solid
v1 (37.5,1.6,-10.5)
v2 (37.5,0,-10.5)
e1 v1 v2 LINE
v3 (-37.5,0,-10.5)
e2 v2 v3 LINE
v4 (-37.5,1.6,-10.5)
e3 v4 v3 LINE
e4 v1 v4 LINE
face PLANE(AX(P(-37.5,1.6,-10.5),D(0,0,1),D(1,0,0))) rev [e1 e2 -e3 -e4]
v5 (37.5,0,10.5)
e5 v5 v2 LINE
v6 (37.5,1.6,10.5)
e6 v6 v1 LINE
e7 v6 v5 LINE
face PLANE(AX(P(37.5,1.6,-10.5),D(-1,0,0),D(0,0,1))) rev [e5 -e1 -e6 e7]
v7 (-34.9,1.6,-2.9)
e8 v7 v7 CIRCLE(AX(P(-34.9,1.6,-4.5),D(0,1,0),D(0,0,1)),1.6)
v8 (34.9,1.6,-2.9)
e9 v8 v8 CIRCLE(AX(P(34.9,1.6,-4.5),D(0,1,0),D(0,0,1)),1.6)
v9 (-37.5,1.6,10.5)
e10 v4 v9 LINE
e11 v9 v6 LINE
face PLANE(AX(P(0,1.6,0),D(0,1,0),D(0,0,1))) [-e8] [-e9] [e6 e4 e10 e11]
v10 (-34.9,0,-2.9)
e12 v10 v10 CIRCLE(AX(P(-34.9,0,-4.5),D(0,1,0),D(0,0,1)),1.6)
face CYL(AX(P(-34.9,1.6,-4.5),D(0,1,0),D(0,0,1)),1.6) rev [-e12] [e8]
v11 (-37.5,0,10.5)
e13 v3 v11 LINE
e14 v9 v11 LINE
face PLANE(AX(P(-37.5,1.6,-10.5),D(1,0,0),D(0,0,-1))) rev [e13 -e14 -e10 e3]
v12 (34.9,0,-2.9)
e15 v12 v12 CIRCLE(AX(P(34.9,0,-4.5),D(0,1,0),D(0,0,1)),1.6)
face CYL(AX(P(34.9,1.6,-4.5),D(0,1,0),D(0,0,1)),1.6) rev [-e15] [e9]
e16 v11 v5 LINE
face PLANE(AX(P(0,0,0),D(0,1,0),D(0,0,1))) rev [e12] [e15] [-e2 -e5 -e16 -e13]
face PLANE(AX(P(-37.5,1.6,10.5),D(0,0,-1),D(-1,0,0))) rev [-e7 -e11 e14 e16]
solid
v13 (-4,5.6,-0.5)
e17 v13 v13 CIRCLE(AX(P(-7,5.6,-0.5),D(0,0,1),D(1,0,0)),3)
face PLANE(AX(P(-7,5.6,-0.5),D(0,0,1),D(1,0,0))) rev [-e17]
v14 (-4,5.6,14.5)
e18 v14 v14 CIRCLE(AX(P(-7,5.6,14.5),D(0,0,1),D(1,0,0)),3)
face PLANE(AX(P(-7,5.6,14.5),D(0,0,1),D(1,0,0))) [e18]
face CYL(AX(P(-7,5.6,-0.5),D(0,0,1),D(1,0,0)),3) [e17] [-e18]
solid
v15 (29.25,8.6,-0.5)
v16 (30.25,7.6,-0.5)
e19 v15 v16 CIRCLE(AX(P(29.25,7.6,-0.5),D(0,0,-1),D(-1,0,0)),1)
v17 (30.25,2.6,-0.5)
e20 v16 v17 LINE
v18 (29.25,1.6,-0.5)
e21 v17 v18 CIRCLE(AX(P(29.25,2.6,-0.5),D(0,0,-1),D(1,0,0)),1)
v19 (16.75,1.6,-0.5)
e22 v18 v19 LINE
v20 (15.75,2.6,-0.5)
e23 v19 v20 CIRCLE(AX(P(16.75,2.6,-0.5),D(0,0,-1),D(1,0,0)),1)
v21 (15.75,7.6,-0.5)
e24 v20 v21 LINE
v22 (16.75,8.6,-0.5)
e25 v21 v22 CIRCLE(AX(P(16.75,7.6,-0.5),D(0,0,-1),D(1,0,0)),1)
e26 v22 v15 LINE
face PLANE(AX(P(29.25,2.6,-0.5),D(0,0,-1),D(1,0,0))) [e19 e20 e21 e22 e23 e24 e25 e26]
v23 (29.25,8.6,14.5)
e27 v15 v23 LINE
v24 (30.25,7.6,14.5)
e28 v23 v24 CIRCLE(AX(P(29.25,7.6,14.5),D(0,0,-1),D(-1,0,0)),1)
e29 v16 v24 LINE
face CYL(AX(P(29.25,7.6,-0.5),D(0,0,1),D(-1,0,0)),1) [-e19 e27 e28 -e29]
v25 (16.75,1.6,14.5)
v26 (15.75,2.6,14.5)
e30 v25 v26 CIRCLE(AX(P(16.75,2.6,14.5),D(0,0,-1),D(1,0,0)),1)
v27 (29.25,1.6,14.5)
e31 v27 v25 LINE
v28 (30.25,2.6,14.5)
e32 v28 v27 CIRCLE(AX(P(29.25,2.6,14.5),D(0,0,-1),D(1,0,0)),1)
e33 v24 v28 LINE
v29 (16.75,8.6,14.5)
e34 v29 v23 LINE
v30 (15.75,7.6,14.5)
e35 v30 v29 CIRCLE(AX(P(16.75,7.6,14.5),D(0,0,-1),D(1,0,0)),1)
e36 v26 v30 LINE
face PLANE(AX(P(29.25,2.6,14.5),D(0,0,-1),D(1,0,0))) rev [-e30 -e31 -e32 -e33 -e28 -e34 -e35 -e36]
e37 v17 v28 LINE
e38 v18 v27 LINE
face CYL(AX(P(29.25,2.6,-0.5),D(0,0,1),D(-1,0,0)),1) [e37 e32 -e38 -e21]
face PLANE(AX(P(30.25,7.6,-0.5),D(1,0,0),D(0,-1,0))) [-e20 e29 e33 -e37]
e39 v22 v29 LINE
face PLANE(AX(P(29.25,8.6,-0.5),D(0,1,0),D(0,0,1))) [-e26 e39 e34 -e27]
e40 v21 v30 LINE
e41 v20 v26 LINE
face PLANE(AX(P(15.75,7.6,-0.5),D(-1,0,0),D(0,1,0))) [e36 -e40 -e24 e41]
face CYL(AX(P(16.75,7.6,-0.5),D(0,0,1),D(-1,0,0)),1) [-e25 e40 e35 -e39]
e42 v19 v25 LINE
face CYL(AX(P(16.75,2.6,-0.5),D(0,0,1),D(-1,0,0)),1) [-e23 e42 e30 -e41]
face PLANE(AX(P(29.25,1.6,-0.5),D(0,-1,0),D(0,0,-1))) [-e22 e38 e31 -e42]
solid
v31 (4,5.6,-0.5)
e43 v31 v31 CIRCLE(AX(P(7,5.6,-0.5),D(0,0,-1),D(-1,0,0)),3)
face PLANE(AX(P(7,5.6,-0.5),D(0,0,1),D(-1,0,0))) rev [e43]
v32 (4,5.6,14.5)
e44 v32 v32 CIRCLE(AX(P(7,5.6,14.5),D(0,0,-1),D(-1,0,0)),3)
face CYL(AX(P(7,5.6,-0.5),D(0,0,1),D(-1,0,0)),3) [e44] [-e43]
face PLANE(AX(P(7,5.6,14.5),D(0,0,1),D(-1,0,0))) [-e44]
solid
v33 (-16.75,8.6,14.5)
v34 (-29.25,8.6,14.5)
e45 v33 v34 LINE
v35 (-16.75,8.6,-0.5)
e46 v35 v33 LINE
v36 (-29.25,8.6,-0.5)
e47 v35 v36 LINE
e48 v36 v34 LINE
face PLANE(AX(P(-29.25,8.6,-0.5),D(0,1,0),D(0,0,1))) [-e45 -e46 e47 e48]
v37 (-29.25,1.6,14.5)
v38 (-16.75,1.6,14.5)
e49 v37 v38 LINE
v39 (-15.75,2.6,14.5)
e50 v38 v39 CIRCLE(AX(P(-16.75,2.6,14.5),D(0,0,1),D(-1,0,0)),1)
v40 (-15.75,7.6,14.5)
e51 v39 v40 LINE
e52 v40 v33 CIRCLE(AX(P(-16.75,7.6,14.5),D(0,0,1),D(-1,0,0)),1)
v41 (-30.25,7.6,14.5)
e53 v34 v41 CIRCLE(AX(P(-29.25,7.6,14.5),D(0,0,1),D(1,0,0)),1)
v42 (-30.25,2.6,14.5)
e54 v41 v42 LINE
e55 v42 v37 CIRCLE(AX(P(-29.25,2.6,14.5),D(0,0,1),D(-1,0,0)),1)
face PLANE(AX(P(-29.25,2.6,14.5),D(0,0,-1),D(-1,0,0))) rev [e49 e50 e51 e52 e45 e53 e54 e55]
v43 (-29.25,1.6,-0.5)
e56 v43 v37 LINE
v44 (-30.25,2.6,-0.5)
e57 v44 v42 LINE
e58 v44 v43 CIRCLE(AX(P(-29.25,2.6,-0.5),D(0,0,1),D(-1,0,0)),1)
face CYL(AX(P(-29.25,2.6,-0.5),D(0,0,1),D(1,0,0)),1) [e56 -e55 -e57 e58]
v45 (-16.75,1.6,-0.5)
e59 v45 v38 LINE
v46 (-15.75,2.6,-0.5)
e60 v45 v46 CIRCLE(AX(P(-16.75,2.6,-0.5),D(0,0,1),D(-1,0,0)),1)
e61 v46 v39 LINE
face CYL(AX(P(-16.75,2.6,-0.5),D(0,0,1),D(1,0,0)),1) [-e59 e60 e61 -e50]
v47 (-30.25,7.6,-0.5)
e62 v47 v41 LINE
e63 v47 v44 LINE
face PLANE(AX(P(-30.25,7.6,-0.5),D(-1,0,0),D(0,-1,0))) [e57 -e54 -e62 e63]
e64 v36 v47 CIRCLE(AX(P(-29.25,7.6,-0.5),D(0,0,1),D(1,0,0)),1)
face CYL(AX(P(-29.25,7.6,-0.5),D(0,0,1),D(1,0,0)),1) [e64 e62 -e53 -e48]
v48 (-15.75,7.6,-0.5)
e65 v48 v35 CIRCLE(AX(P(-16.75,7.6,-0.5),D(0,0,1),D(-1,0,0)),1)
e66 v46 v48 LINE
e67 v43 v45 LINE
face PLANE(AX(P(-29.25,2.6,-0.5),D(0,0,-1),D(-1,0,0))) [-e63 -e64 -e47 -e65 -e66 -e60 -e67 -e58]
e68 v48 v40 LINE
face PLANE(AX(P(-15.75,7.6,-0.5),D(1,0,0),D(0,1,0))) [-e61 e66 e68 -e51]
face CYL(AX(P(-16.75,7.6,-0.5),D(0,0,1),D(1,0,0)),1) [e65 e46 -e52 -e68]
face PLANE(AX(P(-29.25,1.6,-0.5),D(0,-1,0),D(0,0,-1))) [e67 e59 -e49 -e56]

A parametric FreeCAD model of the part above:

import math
import FreeCAD as App
import Part
import Sketcher
Q = App.Units.Quantity

doc = App.newDocument("Part")
body = doc.addObject("PartDesign::Body", "Body")

sketch1 = body.newObject("Sketcher::SketchObject", "Sketch")
sketch1.AttachmentSupport = (doc.getObject("XZ_Plane"), [""])
sketch1.MapMode = "FlatFace"
sketch1.addGeometry(Part.LineSegment(App.Vector(-38, -10, 0), App.Vector(-38, 10, 0)), False)
sketch1.addGeometry(Part.LineSegment(App.Vector(-38, 10, 0), App.Vector(38, 10, 0)), False)
sketch1.addGeometry(Part.LineSegment(App.Vector(38, 10, 0), App.Vector(38, -10, 0)), False)
sketch1.addGeometry(Part.LineSegment(App.Vector(38, -10, 0), App.Vector(-38, -10, 0)), False)
sketch1.addConstraint(Sketcher.Constraint("Coincident", 0, 2, 1, 1))
sketch1.addConstraint(Sketcher.Constraint("Coincident", 1, 2, 2, 1))
sketch1.addConstraint(Sketcher.Constraint("Coincident", 2, 2, 3, 1))
sketch1.addConstraint(Sketcher.Constraint("Coincident", 3, 2, 0, 1))
sketch1.addConstraint(Sketcher.Constraint("Vertical", 0))
sketch1.addConstraint(Sketcher.Constraint("Horizontal", 1))
sketch1.addConstraint(Sketcher.Constraint("Vertical", 2))
sketch1.addConstraint(Sketcher.Constraint("Horizontal", 3))
sketch1.addConstraint(Sketcher.Constraint("Symmetric", 0, 2, 2, 2, -1, 1))
sketch1.addConstraint(Sketcher.Constraint("DistanceX", 1, 1, 1, 2, Q("75 mm")))
sketch1.addConstraint(Sketcher.Constraint("DistanceY", 0, 1, 0, 2, Q("21 mm")))
pad1 = body.newObject("PartDesign::Pad", "Pad")
pad1.Profile = sketch1
pad1.Length = 1.6
pad1.Reversed = True

sketch2 = body.newObject("Sketcher::SketchObject", "Sketch001")
sketch2.AttachmentSupport = (doc.getObject("YZ_Plane"), [""])
sketch2.MapMode = "FlatFace"
sketch2.AttachmentOffset = App.Placement(App.Vector(0, 0, -34.9), App.Rotation())
sketch2.addGeometry(Part.LineSegment(App.Vector(0, -4.5, 0), App.Vector(1.6, -4.5, 0)), False)
sketch2.addGeometry(Part.LineSegment(App.Vector(1.6, -4.5, 0), App.Vector(1.6, -2.9, 0)), False)
sketch2.addGeometry(Part.LineSegment(App.Vector(1.6, -2.9, 0), App.Vector(0, -2.9, 0)), False)
sketch2.addGeometry(Part.LineSegment(App.Vector(0, -2.9, 0), App.Vector(0, -4.5, 0)), False)
sketch2.addGeometry(Part.LineSegment(App.Vector(1.6, -4.5, 0), App.Vector(0, -4.5, 0)), True)
sketch2.addConstraint(Sketcher.Constraint("Coincident", 0, 2, 1, 1))
sketch2.addConstraint(Sketcher.Constraint("Coincident", 1, 2, 2, 1))
sketch2.addConstraint(Sketcher.Constraint("Coincident", 2, 2, 3, 1))
sketch2.addConstraint(Sketcher.Constraint("Coincident", 3, 2, 0, 1))
sketch2.addConstraint(Sketcher.Constraint("Horizontal", 0))
sketch2.addConstraint(Sketcher.Constraint("Vertical", 1))
sketch2.addConstraint(Sketcher.Constraint("Horizontal", 2))
sketch2.addConstraint(Sketcher.Constraint("Vertical", 3))
sketch2.addConstraint(Sketcher.Constraint("Horizontal", 4))
sketch2.addConstraint(Sketcher.Constraint("Coincident", 4, 1, 0, 2))
sketch2.addConstraint(Sketcher.Constraint("PointOnObject", 2, 2, -2))
sketch2.addConstraint(Sketcher.Constraint("PointOnObject", 4, 2, -2))
sketch2.addConstraint(Sketcher.Constraint("Equal", 4, 1))
sketch2.addConstraint(Sketcher.Constraint("DistanceX", 0, 1, 0, 2, Q("1.6 mm")))
sketch2.addConstraint(Sketcher.Constraint("DistanceY", 0, 2, -1, 1, Q("4.5 mm")))
groove = body.newObject("PartDesign::Groove", "Groove")
groove.Profile = sketch2
groove.ReferenceAxis = (sketch2, ["Axis0"])
groove.Angle = 360
doc.recompute()

linearpattern = body.newObject("PartDesign::LinearPattern", "LinearPattern")
linearpattern.Originals = [groove]
linearpattern.Direction = (doc.getObject("X_Axis"), [""])
linearpattern.Mode = "offset"
linearpattern.Offset = 69.8
linearpattern.Occurrences = 2
body.Tip = linearpattern
body2 = doc.addObject("PartDesign::Body", "Body001")

sketch3 = body2.newObject("Sketcher::SketchObject", "Sketch002")
sketch3.AttachmentSupport = (doc.getObject("XY_Plane001"), [""])
sketch3.MapMode = "FlatFace"
sketch3.AttachmentOffset = App.Placement(App.Vector(0, 0, 14.5), App.Rotation())
sketch3.addGeometry(Part.Circle(App.Vector(-7, 5.6, 0), App.Vector(0, 0, 1), 3), False)
sketch3.addConstraint(Sketcher.Constraint("Diameter", 0, Q("6 mm")))
sketch3.addConstraint(Sketcher.Constraint("DistanceX", 0, 3, -1, 1, Q("7 mm")))
sketch3.addConstraint(Sketcher.Constraint("DistanceY", -1, 1, 0, 3, Q("5.6 mm")))
pad2 = body2.newObject("PartDesign::Pad", "Pad001")
pad2.Profile = sketch3
pad2.Length = 15
pad2.Reversed = True
body3 = doc.addObject("PartDesign::Body", "Body002")

sketch4 = body3.newObject("Sketcher::SketchObject", "Sketch003")
sketch4.AttachmentSupport = (doc.getObject("XY_Plane002"), [""])
sketch4.MapMode = "FlatFace"
sketch4.AttachmentOffset = App.Placement(App.Vector(0, 0, 14.5), App.Rotation())
sketch4.addGeometry(Part.LineSegment(App.Vector(-16.8, 8.6, 0), App.Vector(-29.2, 8.6, 0)), False)
sketch4.addGeometry(Part.ArcOfCircle(Part.Circle(App.Vector(-29.2, 7.6, 0), App.Vector(0, 0, 1), 1), math.radians(90), math.radians(180)), False)
sketch4.addGeometry(Part.LineSegment(App.Vector(-30.2, 7.6, 0), App.Vector(-30.2, 2.6, 0)), False)
sketch4.addGeometry(Part.ArcOfCircle(Part.Circle(App.Vector(-29.2, 2.6, 0), App.Vector(0, 0, 1), 1), math.radians(-180), math.radians(-90)), False)
sketch4.addGeometry(Part.LineSegment(App.Vector(-29.2, 1.6, 0), App.Vector(-16.8, 1.6, 0)), False)
sketch4.addGeometry(Part.ArcOfCircle(Part.Circle(App.Vector(-16.8, 2.6, 0), App.Vector(0, 0, 1), 1), math.radians(-90), math.radians(0)), False)
sketch4.addGeometry(Part.LineSegment(App.Vector(-15.8, 2.6, 0), App.Vector(-15.8, 7.6, 0)), False)
sketch4.addGeometry(Part.ArcOfCircle(Part.Circle(App.Vector(-16.8, 7.6, 0), App.Vector(0, 0, 1), 1), math.radians(0), math.radians(90)), False)
sketch4.addConstraint(Sketcher.Constraint("Tangent", 0, 2, 1, 1))
sketch4.addConstraint(Sketcher.Constraint("Tangent", 1, 2, 2, 1))
sketch4.addConstraint(Sketcher.Constraint("Tangent", 2, 2, 3, 1))
sketch4.addConstraint(Sketcher.Constraint("Tangent", 3, 2, 4, 1))
sketch4.addConstraint(Sketcher.Constraint("Tangent", 4, 2, 5, 1))
sketch4.addConstraint(Sketcher.Constraint("Tangent", 5, 2, 6, 1))
sketch4.addConstraint(Sketcher.Constraint("Tangent", 6, 2, 7, 1))
sketch4.addConstraint(Sketcher.Constraint("Tangent", 7, 2, 0, 1))
sketch4.addConstraint(Sketcher.Constraint("Horizontal", 0))
sketch4.addConstraint(Sketcher.Constraint("Vertical", 2))
sketch4.addConstraint(Sketcher.Constraint("Horizontal", 4))
sketch4.addConstraint(Sketcher.Constraint("Vertical", 6))
sketch4.addConstraint(Sketcher.Constraint("Equal", 1, 3))
sketch4.addConstraint(Sketcher.Constraint("Equal", 3, 5))
sketch4.addConstraint(Sketcher.Constraint("Equal", 5, 7))
sketch4.addConstraint(Sketcher.Constraint("Radius", 1, Q("1 mm")))
sketch4.addConstraint(Sketcher.Constraint("DistanceY", 2, 2, 2, 1, Q("5 mm")))
sketch4.addConstraint(Sketcher.Constraint("DistanceX", 0, 2, 0, 1, Q("12.5 mm")))
sketch4.addConstraint(Sketcher.Constraint("DistanceY", -1, 1, 1, 3, Q("7.6 mm")))
sketch4.addConstraint(Sketcher.Constraint("DistanceX", 1, 3, -1, 1, Q("29.25 mm")))
pad3 = body3.newObject("PartDesign::Pad", "Pad002")
pad3.Profile = sketch4
pad3.Length = 15
pad3.Reversed = True
body4 = doc.addObject("PartDesign::Body", "Body003")
doc.recompute()

mirroring = doc.addObject("Part::Mirroring", "Mirroring")
mirroring.Source = body3
mirroring.Base = App.Vector(0, 0, 0)
mirroring.Normal = App.Vector(-1, 0, 0)
body4.BaseFeature = mirroring
doc.recompute()
body5 = doc.addObject("PartDesign::Body", "Body004")
doc.recompute()

mirroring2 = doc.addObject("Part::Mirroring", "Mirroring001")
mirroring2.Source = body2
mirroring2.Base = App.Vector(0, 0, 0)
mirroring2.Normal = App.Vector(-1, 0, 0)
body5.BaseFeature = mirroring2
doc.recompute()
mirroring.Visibility = False
mirroring2.Visibility = False

doc.recompute()
